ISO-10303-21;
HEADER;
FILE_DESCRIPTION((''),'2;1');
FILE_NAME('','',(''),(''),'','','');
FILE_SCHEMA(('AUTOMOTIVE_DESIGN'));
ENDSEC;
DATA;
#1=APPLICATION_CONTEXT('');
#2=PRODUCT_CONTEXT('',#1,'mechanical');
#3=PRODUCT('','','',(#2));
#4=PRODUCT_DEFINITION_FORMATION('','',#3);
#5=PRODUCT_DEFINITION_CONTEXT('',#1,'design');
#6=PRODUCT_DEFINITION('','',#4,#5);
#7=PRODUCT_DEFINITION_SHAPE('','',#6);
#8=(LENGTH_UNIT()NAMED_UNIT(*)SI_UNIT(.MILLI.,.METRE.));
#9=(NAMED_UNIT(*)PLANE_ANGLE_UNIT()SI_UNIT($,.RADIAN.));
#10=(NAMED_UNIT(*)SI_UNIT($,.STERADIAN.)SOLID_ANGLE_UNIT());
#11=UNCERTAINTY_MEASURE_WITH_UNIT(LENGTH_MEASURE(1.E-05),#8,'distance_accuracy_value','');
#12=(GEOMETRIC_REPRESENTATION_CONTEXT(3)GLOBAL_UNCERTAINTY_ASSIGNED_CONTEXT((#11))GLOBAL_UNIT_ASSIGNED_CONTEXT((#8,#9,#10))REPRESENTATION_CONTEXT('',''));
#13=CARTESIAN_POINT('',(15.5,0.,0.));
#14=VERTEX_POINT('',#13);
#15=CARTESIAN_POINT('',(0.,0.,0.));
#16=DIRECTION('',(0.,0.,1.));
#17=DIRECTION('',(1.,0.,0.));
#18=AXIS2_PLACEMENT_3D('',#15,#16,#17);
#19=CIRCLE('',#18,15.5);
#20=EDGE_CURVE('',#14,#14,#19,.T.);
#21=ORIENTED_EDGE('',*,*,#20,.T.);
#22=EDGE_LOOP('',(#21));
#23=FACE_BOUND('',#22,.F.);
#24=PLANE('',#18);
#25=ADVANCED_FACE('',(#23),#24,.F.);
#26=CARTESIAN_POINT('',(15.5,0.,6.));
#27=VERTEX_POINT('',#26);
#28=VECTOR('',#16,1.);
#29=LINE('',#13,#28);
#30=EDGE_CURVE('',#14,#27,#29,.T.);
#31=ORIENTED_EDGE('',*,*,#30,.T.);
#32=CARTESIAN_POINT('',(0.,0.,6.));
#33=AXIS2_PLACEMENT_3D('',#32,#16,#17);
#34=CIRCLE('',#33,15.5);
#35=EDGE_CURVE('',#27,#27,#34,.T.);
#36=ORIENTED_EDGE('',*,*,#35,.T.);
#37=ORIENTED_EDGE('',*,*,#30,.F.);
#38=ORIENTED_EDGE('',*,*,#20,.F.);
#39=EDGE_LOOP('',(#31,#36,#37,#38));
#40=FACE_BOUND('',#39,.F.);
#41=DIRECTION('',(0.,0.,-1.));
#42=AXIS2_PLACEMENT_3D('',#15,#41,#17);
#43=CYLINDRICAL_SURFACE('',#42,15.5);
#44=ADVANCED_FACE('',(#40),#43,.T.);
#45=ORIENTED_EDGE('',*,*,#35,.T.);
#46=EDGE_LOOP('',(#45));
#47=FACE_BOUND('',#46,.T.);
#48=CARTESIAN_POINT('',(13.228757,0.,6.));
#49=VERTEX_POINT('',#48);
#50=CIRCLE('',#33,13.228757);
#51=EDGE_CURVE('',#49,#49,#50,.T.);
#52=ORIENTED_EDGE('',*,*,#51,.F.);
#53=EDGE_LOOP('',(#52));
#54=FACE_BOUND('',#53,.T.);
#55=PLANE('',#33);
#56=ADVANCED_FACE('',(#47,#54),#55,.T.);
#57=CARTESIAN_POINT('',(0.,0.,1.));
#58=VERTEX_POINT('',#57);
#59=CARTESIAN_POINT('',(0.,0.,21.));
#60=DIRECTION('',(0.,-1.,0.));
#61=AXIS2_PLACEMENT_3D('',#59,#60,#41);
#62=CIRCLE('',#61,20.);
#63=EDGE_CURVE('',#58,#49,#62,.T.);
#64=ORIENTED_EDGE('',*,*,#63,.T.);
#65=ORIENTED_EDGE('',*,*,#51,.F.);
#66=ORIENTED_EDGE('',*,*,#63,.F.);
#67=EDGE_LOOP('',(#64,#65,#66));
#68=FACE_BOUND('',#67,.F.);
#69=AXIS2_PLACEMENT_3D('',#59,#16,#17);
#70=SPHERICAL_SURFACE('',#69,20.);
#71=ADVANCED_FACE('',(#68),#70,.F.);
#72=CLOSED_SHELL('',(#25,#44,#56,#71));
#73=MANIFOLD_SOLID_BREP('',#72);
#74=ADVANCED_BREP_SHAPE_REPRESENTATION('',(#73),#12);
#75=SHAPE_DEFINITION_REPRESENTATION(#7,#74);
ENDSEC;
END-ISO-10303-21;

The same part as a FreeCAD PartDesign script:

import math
import FreeCAD as App
import Part
import Sketcher

V = App.Vector
Q = App.Units.Quantity

doc = App.newDocument("Part")
body = doc.addObject("PartDesign::Body", "Body")

# Sketch on XZ plane
sketch1 = doc.addObject("Sketcher::SketchObject", "Sketch")
body.addObject(sketch1)
sketch1.AttachmentSupport = (doc.XZ_Plane, [""])
sketch1.MapMode = "FlatFace"
sketch1.addGeometry(Part.ArcOfCircle(Part.Circle(V(0, 21, 0), V(0, 0, 1), 20), math.radians(-90), math.radians(90)), False)
sketch1.addGeometry(Part.LineSegment(V(0, 41, 0), V(0, 1, 0)), False)
sketch1.addConstraint(Sketcher.Constraint("Coincident", 0, 1, 1, 2))
sketch1.addConstraint(Sketcher.Constraint("Coincident", 1, 1, 0, 2))
sketch1.addConstraint(Sketcher.Constraint("Vertical", 1))
sketch1.addConstraint(Sketcher.Constraint("PointOnObject", 0, 3, -2))
sketch1.addConstraint(Sketcher.Constraint("PointOnObject", 0, 1, -2))
sketch1.addConstraint(Sketcher.Constraint("Radius", 0, Q("20 mm")))
sketch1.addConstraint(Sketcher.Constraint("DistanceY", -1, 1, 0, 3, Q("21 mm")))
revolution = doc.addObject("PartDesign::Revolution", "Revolution")
body.addObject(revolution)
revolution.Profile = sketch1
revolution.ReferenceAxis = (sketch1, ["V_Axis"])
revolution.Angle = 360
body2 = doc.addObject("PartDesign::Body", "Body001")

# Sketch on XY plane
sketch2 = doc.addObject("Sketcher::SketchObject", "Sketch001")
body2.addObject(sketch2)
sketch2.AttachmentSupport = (doc.getObject("XY_Plane001"), [""])
sketch2.MapMode = "FlatFace"
sketch2.addGeometry(Part.Circle(V(0, 0, 0), V(0, 0, 1), 15.5), False)
sketch2.addConstraint(Sketcher.Constraint("Coincident", 0, 3, -1, 1))
sketch2.addConstraint(Sketcher.Constraint("Diameter", 0, Q("31 mm")))
pad1 = doc.addObject("PartDesign::Pad", "Pad")
body2.addObject(pad1)
pad1.Profile = sketch2
pad1.Length = 6
doc.recompute()

boolean = doc.addObject("PartDesign::Boolean", "Boolean")
body2.addObject(boolean)
boolean.Type = "Cut"
boolean.addObjects([body])

doc.recompute()
